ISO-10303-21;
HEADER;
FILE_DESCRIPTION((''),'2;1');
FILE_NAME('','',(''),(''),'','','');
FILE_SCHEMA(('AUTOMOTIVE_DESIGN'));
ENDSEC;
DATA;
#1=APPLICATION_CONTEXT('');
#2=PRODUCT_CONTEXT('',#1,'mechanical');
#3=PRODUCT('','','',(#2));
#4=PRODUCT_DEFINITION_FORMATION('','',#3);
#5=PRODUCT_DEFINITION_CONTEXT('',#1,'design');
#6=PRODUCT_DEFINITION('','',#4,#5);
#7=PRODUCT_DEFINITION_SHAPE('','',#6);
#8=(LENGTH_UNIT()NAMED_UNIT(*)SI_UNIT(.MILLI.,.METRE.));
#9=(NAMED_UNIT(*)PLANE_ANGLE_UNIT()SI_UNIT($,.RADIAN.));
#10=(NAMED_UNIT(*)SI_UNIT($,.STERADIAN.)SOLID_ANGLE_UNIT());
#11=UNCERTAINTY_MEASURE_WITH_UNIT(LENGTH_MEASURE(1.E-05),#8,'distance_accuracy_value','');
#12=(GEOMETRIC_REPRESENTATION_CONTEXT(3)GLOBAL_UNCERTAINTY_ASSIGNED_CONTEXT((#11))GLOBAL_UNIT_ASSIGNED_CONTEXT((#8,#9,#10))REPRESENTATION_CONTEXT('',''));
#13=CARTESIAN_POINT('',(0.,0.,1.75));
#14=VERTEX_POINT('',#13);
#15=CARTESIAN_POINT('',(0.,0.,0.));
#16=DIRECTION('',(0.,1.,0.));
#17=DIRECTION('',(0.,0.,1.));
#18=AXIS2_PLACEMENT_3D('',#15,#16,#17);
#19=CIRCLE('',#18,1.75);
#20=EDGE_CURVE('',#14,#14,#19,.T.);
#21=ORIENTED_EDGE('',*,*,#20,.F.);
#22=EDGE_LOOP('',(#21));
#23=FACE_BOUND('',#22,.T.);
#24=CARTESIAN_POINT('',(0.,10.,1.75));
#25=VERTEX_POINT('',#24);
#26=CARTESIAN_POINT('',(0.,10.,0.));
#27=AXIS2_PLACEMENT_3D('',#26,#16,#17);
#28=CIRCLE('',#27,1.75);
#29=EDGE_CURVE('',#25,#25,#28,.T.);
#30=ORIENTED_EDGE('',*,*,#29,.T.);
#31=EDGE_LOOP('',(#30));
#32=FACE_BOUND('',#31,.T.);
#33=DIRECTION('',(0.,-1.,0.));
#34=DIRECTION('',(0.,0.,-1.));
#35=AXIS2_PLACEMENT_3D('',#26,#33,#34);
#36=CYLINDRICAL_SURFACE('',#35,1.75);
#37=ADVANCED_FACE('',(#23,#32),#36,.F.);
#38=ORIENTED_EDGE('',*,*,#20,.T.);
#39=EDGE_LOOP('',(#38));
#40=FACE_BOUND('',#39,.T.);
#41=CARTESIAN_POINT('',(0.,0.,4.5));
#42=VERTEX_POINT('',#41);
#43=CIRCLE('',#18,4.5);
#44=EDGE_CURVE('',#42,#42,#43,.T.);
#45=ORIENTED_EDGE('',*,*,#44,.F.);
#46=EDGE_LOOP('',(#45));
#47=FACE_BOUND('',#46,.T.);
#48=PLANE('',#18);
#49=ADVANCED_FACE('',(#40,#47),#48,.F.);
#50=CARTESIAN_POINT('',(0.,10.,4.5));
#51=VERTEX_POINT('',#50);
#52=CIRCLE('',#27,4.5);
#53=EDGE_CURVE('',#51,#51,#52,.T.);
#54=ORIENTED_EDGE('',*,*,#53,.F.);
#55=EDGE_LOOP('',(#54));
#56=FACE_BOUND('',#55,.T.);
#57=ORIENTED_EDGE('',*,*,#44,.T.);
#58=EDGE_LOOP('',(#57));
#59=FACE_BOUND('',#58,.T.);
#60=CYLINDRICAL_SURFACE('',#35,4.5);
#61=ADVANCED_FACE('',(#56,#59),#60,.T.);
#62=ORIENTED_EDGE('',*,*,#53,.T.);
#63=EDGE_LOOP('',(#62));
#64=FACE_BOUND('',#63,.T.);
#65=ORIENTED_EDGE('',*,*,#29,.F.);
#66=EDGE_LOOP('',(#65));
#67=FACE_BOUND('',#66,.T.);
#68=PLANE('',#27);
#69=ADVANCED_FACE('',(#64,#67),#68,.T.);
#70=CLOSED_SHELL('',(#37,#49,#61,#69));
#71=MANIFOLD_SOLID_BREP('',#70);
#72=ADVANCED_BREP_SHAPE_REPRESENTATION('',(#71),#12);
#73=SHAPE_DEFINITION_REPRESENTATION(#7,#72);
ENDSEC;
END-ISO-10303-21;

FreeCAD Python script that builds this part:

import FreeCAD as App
import Part
import Sketcher

doc = App.newDocument("Part")
body = doc.addObject("PartDesign::Body", "Body")

# Sketch on XZ plane
sketch1 = body.newObject("Sketcher::SketchObject", "Sketch")
sketch1.AttachmentSupport = (doc.getObject("XZ_Plane"), [""])
sketch1.MapMode = "FlatFace"
sketch1.addGeometry([
    Part.Circle(App.Vector(0, 0, 0), App.Vector(0, 0, 1), 4.5),
    Part.Circle(App.Vector(0, 0, 0), App.Vector(0, 0, 1), 1.8),
], False)
sketch1.addConstraint([
    Sketcher.Constraint("Coincident", 0, 3, -1, 1),
    Sketcher.Constraint("Coincident", 1, 3, -1, 1),
    Sketcher.Constraint("Diameter", 0, 9.0),
    Sketcher.Constraint("Diameter", 1, 3.5),
])
pad1 = body.newObject("PartDesign::Pad", "Pad")
pad1.Profile = sketch1
pad1.Length = 10
pad1.Reversed = True

doc.recompute()
